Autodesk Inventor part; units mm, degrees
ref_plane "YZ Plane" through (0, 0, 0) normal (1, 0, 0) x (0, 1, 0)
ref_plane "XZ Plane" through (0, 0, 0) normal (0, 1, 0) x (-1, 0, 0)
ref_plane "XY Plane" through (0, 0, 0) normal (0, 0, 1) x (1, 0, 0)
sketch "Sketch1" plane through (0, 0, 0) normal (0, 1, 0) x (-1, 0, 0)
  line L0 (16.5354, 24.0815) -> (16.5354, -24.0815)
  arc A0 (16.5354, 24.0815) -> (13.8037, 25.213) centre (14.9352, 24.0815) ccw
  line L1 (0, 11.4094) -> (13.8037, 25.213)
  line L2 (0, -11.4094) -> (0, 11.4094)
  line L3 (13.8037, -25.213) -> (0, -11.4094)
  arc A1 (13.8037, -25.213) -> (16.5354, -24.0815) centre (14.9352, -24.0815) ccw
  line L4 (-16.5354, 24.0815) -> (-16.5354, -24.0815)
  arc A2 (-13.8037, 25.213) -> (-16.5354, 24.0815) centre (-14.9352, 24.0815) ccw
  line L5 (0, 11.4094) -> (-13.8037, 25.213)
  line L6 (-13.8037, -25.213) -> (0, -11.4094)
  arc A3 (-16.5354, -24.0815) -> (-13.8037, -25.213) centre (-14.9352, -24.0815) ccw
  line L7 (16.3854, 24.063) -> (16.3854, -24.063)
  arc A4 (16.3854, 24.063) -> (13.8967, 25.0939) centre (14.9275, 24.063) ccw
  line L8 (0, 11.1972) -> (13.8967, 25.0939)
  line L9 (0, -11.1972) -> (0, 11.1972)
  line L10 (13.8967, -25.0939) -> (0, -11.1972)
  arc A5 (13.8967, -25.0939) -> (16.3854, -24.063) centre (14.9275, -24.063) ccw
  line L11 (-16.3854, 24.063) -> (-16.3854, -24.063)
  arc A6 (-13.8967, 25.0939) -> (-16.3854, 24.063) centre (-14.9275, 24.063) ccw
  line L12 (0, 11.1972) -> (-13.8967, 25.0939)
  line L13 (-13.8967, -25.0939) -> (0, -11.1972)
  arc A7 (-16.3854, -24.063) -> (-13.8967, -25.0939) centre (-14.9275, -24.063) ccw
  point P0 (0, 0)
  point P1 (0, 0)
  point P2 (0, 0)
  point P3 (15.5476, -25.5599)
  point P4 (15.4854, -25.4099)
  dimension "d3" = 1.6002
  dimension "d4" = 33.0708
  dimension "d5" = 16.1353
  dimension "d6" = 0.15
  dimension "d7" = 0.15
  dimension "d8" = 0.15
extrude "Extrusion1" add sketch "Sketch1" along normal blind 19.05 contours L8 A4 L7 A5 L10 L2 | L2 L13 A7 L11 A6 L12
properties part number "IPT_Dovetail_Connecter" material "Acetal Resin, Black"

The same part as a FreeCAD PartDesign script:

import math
import FreeCAD as App
import Part
import Sketcher
from FreeCAD import Vector
Q = App.Units.Quantity

doc = App.newDocument("Part")
params = doc.addObject("Spreadsheet::Sheet", "Params")
for row, (alias, value) in enumerate([
    ("pad1_length", "0.75 in"),
], start=1):
    params.set(f"A{row}", alias)
    params.set(f"B{row}", "=" + value)
    params.setAlias(f"B{row}", alias)

body = doc.addObject("PartDesign::Body", "Body")

sketch1 = body.newObject("Sketcher::SketchObject", "Sketch")
sketch1.AttachmentSupport = (doc.getObject("XZ_Plane"), [""])
sketch1.MapMode = "FlatFace"
sketch1.addGeometry(Part.LineSegment(Vector(-13.9, 25.1, 0), Vector(0, 11.2, 0)), False)
sketch1.addGeometry(Part.LineSegment(Vector(0, 11.2, 0), Vector(13.9, 25.1, 0)), False)
sketch1.addGeometry(Part.ArcOfCircle(Part.Circle(Vector(14.9, 24.1, 0), Vector(0, 0, 1), 1.5), math.radians(0), math.radians(135)), False)
sketch1.addGeometry(Part.LineSegment(Vector(16.4, 24.1, 0), Vector(16.4, -24.1, 0)), False)
sketch1.addGeometry(Part.ArcOfCircle(Part.Circle(Vector(14.9, -24.1, 0), Vector(0, 0, 1), 1.5), math.radians(-135), math.radians(0)), False)
sketch1.addGeometry(Part.LineSegment(Vector(13.9, -25.1, 0), Vector(0, -11.2, 0)), False)
sketch1.addGeometry(Part.LineSegment(Vector(0, -11.2, 0), Vector(-13.9, -25.1, 0)), False)
sketch1.addGeometry(Part.ArcOfCircle(Part.Circle(Vector(-14.9, -24.1, 0), Vector(0, 0, 1), 1.5), math.radians(180), math.radians(315)), False)
sketch1.addGeometry(Part.LineSegment(Vector(-16.4, -24.1, 0), Vector(-16.4, 24.1, 0)), False)
sketch1.addGeometry(Part.ArcOfCircle(Part.Circle(Vector(-14.9, 24.1, 0), Vector(0, 0, 1), 1.5), math.radians(45), math.radians(180)), False)
sketch1.addConstraint(Sketcher.Constraint("Coincident", 0, 2, 1, 1))
sketch1.addConstraint(Sketcher.Constraint("Tangent", 1, 2, 2, 2))
sketch1.addConstraint(Sketcher.Constraint("Tangent", 2, 1, 3, 1))
sketch1.addConstraint(Sketcher.Constraint("Tangent", 3, 2, 4, 2))
sketch1.addConstraint(Sketcher.Constraint("Tangent", 4, 1, 5, 1))
sketch1.addConstraint(Sketcher.Constraint("Coincident", 5, 2, 6, 1))
sketch1.addConstraint(Sketcher.Constraint("Tangent", 6, 2, 7, 2))
sketch1.addConstraint(Sketcher.Constraint("Tangent", 7, 1, 8, 1))
sketch1.addConstraint(Sketcher.Constraint("Tangent", 8, 2, 9, 2))
sketch1.addConstraint(Sketcher.Constraint("Tangent", 9, 1, 0, 1))
sketch1.addConstraint(Sketcher.Constraint("Vertical", 3))
sketch1.addConstraint(Sketcher.Constraint("Vertical", 8))
sketch1.addConstraint(Sketcher.Constraint("Equal", 2, 4))
sketch1.addConstraint(Sketcher.Constraint("Equal", 4, 7))
sketch1.addConstraint(Sketcher.Constraint("Equal", 7, 9))
sketch1.addConstraint(Sketcher.Constraint("Symmetric", 2, 3, 7, 3, -1, 1))
sketch1.addConstraint(Sketcher.Constraint("Symmetric", 0, 2, 5, 2, -1, 1))
sketch1.addConstraint(Sketcher.Constraint("Symmetric", 4, 1, 6, 2, -2))
sketch1.addConstraint(Sketcher.Constraint("Perpendicular", 0, 1))
sketch1.addConstraint(Sketcher.Constraint("Perpendicular", 1, 5))
sketch1.addConstraint(Sketcher.Constraint("Radius", 2, Q("0.0574 in")))
sketch1.addConstraint(Sketcher.Constraint("DistanceY", 3, 2, 3, 1, 48.126))
sketch1.addConstraint(Sketcher.Constraint("DistanceX", -1, 1, 2, 3, Q("0.5877 in")))
pad1 = body.newObject("PartDesign::Pad", "Pad")
pad1.Profile = sketch1
pad1.setExpression("Length", "Params.pad1_length")
pad1.Reversed = True

doc.recompute()
